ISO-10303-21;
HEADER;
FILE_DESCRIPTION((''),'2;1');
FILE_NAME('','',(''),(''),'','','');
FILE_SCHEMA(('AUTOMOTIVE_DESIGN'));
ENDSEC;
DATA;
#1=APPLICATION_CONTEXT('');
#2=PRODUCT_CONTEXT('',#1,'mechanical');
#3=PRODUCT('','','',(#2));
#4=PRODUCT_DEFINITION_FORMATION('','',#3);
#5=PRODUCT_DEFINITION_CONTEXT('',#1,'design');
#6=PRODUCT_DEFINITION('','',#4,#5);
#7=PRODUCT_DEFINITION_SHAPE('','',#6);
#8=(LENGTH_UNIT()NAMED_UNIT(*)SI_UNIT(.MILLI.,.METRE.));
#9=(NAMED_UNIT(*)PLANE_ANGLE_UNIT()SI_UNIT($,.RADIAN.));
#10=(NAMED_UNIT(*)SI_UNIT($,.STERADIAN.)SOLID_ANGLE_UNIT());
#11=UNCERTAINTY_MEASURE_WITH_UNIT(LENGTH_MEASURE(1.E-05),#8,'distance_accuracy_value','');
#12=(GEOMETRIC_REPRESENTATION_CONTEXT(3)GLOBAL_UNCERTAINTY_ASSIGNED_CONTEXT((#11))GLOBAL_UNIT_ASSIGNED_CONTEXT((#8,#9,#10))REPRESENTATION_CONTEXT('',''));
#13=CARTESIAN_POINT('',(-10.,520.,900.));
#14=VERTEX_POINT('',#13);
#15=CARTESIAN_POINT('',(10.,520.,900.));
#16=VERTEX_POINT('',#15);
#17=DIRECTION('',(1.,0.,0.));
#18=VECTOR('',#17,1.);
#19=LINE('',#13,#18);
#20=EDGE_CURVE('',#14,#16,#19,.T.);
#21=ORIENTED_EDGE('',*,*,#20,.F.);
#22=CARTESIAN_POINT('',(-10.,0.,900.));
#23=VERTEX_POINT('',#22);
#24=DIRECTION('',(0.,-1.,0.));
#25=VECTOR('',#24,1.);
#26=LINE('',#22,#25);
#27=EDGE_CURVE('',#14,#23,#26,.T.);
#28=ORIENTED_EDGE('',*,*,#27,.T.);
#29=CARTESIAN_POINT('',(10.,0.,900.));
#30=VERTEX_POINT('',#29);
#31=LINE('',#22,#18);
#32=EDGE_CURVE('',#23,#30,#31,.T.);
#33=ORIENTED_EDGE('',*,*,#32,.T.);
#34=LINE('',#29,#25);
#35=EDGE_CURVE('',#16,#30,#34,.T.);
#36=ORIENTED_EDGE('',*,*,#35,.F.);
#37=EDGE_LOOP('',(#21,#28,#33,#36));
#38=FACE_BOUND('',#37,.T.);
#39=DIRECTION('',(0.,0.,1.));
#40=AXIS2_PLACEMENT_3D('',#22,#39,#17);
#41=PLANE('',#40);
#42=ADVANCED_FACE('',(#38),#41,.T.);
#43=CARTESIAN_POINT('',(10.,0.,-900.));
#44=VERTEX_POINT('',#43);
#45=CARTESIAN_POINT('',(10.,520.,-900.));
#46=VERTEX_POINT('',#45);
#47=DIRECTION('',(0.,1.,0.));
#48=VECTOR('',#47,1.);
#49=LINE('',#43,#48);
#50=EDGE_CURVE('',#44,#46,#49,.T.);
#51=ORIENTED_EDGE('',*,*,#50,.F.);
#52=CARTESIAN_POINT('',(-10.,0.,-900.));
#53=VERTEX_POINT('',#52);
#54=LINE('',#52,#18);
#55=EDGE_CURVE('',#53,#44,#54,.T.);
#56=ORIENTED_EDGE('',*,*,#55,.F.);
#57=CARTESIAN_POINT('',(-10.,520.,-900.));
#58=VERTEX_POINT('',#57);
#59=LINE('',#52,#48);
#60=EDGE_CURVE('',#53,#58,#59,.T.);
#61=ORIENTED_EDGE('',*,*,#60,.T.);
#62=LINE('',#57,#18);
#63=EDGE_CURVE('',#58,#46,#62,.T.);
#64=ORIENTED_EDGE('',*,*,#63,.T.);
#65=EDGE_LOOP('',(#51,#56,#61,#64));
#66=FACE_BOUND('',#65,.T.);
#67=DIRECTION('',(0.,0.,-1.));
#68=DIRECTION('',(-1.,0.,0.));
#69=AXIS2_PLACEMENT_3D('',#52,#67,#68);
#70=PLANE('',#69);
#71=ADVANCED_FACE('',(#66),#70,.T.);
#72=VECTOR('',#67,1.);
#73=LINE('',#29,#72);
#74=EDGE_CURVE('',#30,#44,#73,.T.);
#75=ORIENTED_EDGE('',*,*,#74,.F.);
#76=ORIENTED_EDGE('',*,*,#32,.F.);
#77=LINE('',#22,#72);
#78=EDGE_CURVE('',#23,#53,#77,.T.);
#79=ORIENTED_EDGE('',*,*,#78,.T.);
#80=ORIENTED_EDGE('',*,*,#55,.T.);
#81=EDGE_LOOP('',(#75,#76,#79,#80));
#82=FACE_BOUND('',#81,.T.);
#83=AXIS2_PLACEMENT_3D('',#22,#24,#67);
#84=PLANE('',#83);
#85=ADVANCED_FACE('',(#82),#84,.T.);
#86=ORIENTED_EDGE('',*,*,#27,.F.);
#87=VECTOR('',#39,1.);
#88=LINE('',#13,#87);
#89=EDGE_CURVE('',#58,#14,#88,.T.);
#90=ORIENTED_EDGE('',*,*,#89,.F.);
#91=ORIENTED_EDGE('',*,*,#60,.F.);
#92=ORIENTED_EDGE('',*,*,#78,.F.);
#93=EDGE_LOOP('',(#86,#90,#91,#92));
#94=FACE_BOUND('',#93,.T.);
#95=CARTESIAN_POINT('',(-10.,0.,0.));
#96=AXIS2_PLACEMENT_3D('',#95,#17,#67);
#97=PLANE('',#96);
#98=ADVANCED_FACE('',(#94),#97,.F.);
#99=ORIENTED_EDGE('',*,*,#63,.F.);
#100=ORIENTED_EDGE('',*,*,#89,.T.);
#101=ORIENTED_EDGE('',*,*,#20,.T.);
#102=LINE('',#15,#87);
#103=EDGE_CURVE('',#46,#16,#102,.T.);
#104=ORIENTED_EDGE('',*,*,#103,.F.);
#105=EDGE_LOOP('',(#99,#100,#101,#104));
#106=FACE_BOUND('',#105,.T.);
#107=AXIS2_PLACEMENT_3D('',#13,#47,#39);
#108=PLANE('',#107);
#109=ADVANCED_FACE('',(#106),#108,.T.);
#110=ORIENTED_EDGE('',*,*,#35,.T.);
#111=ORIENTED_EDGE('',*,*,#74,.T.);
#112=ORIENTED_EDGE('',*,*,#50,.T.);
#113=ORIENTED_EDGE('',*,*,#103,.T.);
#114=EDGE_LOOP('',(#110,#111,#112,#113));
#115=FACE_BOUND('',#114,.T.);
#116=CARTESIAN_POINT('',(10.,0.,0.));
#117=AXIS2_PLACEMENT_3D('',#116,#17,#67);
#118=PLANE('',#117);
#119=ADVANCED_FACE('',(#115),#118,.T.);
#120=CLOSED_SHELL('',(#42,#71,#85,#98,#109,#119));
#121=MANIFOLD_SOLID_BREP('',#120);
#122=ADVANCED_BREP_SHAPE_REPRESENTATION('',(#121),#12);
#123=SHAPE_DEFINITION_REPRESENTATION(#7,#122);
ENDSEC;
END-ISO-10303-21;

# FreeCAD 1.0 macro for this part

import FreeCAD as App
import Part
import Sketcher
from FreeCAD import Vector


def add_polygon(sketch, points):
    """Adds a closed chain of lines whose ends are joined by coincident constraints."""
    first, n = sketch.GeometryCount, len(points)
    for a, b in zip(points, points[1:] + points[:1]):
        sketch.addGeometry(Part.LineSegment(App.Vector(*a, 0), App.Vector(*b, 0)), False)
    for i in range(n):
        sketch.addConstraint(Sketcher.Constraint("Coincident", first + i, 2, first + (i + 1) % n, 1))

doc = App.newDocument("Part")
body = doc.addObject("PartDesign::Body", "Body")

sketch1 = doc.addObject("Sketcher::SketchObject", "Sketch")
body.addObject(sketch1)
sketch1.AttachmentSupport = (doc.YZ_Plane, [""])
sketch1.MapMode = "FlatFace"
add_polygon(sketch1, [(0, 900), (0, -900), (520, -900), (520, 900)])
sketch1.addConstraint([
    Sketcher.Constraint("Vertical", 0),
    Sketcher.Constraint("Horizontal", 1),
    Sketcher.Constraint("Vertical", 2),
    Sketcher.Constraint("Horizontal", 3),
    Sketcher.Constraint("Symmetric", 0, 2, 3, 2, -1, 1),
    Sketcher.Constraint("DistanceX", 1, 1, 1, 2, 520.0),
    Sketcher.Constraint("DistanceY", 0, 2, 0, 1, 1800.0),
])
pad1 = doc.addObject("PartDesign::Pad", "Pad")
body.addObject(pad1)
pad1.Profile = sketch1
pad1.Type = "TwoLengths"
pad1.Length = 10
pad1.Length2 = 10

doc.recompute()
